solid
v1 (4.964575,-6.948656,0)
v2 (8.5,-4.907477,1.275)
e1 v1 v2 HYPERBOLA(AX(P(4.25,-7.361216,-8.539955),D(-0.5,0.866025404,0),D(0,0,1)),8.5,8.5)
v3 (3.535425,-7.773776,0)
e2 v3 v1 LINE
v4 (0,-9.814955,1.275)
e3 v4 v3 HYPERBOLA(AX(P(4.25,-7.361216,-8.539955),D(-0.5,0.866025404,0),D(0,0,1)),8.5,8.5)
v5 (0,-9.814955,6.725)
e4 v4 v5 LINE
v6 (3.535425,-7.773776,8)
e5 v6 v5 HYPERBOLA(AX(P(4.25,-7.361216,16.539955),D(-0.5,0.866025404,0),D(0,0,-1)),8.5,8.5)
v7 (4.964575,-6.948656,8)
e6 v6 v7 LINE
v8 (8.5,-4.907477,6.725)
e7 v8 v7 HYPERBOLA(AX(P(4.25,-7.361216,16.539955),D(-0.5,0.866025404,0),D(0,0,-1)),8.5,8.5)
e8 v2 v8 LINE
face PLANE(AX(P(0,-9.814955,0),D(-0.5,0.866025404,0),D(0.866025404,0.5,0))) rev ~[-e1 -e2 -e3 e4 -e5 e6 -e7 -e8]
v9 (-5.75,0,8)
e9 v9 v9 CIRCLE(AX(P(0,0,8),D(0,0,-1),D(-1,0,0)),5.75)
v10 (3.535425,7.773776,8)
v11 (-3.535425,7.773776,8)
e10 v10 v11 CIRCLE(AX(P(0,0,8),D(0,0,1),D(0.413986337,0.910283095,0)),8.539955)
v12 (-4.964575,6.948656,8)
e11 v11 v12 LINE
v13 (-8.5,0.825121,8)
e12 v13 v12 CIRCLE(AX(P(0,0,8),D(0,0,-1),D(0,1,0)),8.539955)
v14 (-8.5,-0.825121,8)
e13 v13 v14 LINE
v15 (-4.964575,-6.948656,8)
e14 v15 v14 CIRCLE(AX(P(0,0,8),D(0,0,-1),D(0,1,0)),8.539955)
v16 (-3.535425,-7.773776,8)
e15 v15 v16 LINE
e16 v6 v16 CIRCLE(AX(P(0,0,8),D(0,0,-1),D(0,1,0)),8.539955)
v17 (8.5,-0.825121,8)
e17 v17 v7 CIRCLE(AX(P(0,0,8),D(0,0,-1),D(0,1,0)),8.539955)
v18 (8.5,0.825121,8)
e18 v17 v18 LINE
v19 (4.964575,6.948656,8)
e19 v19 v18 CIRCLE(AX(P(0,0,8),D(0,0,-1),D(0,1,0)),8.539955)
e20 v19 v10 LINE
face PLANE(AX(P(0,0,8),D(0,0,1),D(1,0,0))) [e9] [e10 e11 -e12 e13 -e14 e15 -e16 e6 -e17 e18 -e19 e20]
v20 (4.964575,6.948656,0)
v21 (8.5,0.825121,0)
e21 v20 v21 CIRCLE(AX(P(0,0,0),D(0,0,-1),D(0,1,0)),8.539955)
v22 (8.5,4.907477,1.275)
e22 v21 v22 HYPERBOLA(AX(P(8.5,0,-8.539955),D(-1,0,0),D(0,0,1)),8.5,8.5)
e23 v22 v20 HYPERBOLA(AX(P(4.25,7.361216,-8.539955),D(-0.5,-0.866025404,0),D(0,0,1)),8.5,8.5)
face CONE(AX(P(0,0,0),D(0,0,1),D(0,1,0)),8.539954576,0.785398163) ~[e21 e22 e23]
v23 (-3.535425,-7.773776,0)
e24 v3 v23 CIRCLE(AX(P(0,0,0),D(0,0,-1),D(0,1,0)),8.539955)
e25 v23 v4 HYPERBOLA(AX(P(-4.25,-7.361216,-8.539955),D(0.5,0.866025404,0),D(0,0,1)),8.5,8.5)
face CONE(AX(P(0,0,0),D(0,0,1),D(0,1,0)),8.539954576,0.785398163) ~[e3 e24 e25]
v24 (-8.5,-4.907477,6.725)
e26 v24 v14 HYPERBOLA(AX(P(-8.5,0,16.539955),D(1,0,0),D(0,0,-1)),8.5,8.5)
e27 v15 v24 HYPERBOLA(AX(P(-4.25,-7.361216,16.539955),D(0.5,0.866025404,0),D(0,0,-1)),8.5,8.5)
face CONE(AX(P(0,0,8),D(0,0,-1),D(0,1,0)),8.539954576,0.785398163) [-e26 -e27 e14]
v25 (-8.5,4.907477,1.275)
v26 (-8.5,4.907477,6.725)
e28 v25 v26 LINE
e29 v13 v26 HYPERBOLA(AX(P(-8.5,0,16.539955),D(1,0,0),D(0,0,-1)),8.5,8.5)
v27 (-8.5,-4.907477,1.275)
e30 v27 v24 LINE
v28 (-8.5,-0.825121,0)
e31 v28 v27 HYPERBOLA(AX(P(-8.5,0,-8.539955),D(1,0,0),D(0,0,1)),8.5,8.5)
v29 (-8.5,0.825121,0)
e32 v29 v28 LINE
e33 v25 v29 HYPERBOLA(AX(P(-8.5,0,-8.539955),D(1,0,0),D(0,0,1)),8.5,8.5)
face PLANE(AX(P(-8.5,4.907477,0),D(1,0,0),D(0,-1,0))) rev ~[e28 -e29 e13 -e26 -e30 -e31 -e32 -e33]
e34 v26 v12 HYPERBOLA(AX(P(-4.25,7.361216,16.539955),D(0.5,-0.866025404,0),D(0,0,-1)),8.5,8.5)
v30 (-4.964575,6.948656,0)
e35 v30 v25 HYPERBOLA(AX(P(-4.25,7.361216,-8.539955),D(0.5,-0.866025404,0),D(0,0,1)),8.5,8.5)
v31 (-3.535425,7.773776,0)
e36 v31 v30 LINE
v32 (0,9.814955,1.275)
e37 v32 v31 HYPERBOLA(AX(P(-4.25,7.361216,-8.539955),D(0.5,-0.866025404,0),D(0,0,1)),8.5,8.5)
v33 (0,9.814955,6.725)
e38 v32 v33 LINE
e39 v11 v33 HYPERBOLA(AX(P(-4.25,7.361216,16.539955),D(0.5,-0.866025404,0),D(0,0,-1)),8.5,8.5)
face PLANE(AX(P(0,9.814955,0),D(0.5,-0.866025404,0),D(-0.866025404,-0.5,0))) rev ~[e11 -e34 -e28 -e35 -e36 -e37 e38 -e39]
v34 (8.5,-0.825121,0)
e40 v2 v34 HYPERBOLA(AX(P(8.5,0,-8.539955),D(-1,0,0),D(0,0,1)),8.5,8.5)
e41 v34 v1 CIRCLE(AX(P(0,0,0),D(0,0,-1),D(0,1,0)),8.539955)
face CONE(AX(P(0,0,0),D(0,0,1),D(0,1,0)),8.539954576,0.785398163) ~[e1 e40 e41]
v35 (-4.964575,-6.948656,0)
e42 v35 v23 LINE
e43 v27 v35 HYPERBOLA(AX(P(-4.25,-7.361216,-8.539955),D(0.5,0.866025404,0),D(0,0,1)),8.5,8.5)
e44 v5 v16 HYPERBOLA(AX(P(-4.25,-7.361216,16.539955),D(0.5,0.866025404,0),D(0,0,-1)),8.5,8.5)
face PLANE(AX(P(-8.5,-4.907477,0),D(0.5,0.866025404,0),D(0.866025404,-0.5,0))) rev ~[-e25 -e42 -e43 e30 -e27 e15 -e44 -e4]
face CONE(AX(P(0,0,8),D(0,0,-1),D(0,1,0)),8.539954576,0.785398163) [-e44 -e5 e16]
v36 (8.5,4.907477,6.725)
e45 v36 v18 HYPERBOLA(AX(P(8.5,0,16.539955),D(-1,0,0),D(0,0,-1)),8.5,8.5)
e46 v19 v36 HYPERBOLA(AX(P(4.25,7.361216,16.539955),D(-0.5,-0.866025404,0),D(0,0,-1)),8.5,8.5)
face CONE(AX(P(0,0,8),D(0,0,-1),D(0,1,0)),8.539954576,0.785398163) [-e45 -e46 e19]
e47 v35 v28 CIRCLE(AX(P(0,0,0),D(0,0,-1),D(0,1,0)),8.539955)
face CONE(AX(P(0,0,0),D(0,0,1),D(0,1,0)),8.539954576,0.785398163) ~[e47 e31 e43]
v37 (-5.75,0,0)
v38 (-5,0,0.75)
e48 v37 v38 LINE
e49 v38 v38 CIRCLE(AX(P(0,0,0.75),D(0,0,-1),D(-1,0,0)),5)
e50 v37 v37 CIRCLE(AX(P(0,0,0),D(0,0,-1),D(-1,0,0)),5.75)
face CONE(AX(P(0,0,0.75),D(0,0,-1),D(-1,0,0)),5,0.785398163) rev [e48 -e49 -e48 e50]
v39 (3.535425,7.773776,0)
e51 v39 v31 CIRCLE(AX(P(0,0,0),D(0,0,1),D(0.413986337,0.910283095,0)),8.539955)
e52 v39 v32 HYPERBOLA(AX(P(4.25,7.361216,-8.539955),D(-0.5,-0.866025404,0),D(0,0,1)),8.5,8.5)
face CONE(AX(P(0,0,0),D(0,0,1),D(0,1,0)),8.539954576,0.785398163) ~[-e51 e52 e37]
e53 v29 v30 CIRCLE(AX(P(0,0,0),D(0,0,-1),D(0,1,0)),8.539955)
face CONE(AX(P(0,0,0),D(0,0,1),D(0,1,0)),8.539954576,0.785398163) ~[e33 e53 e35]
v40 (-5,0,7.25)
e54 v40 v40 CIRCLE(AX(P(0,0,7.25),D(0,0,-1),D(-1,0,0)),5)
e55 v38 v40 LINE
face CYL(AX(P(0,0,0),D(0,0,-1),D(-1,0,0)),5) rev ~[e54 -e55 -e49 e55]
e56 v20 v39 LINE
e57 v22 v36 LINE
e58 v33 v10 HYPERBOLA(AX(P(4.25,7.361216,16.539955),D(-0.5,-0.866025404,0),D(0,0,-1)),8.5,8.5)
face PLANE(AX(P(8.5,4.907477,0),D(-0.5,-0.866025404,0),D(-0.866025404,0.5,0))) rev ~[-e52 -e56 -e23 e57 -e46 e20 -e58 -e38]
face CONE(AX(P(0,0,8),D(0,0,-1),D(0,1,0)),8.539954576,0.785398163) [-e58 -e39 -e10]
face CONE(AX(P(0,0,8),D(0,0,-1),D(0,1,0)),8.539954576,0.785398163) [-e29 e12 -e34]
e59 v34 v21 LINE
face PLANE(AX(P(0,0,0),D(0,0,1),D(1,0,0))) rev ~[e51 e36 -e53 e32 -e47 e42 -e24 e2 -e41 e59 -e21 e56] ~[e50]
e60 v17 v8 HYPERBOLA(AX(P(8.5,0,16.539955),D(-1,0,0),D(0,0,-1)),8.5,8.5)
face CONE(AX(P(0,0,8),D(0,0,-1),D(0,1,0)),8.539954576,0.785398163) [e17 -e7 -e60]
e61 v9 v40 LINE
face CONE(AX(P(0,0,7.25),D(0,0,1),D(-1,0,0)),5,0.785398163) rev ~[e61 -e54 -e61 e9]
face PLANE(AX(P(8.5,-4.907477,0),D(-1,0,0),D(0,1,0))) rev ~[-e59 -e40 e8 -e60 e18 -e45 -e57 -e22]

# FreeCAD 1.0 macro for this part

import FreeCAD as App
import Part
import Sketcher
from FreeCAD import Vector
Q = App.Units.Quantity


def edges_at(feature, points):
    """Names of the edges that pass closest to the given points."""
    edges = feature.Shape.Edges
    near = lambda p: min(range(len(edges)), key=lambda i: edges[i].distToShape(Part.Vertex(*p))[0])
    return sorted({f"Edge{near(p) + 1}" for p in points})


def add_polygon(sketch, points):
    """Adds a closed chain of lines whose ends are joined by coincident constraints."""
    first, n = sketch.GeometryCount, len(points)
    for a, b in zip(points, points[1:] + points[:1]):
        sketch.addGeometry(Part.LineSegment(App.Vector(*a, 0), App.Vector(*b, 0)), False)
    for i in range(n):
        sketch.addConstraint(Sketcher.Constraint("Coincident", first + i, 2, first + (i + 1) % n, 1))

doc = App.newDocument("Part")
body = doc.addObject("PartDesign::Body", "Body")

sketch1 = doc.addObject("Sketcher::SketchObject", "Sketch")
body.addObject(sketch1)
sketch1.AttachmentSupport = (doc.XY_Plane, [""])
sketch1.MapMode = "FlatFace"
add_polygon(sketch1, [(0, 10), (-8, 5), (-8, -5), (0, -10), (8, -5), (8, 5)])
sketch1.addConstraint([
    Sketcher.Constraint("Vertical", 1),
    Sketcher.Constraint("Vertical", 4),
    Sketcher.Constraint("Symmetric", 0, 2, 3, 2, -1, 1),
    Sketcher.Constraint("Symmetric", 2, 2, 5, 2, -1, 1),
    Sketcher.Constraint("PointOnObject", 2, 2, -2),
    Sketcher.Constraint("Parallel", 2, 5),
    Sketcher.Constraint("Horizontal", 1, 2, 3, 2),
    Sketcher.Constraint("Angle", 0, Q("-150 deg")),
    Sketcher.Constraint("DistanceX", 1, 2, 3, 2, 17.0),
    Sketcher.Constraint("DistanceY", 1, 2, 1, 1, 9.814955),
])
pad1 = doc.addObject("PartDesign::Pad", "Pad")
body.addObject(pad1)
pad1.Profile = sketch1
pad1.Length = 8

sketch2 = doc.addObject("Sketcher::SketchObject", "Sketch001")
body.addObject(sketch2)
sketch2.AttachmentSupport = (doc.YZ_Plane, [""])
sketch2.MapMode = "FlatFace"
add_polygon(sketch2, [(9.8, 8), (8.5, 8), (9.8, 6.7)])
add_polygon(sketch2, [(9.8, 0), (9.8, 1.3), (8.5, 0)])
sketch2.addConstraint([
    Sketcher.Constraint("Horizontal", 0),
    Sketcher.Constraint("Vertical", 2),
    Sketcher.Constraint("Vertical", 3),
    Sketcher.Constraint("Horizontal", 5),
    Sketcher.Constraint("PointOnObject", 4, 2, -1),
    Sketcher.Constraint("Perpendicular", 1, 4),
    Sketcher.Constraint("Vertical", 2, 2, 3, 2),
    Sketcher.Constraint("Vertical", 0, 2, 4, 2),
    Sketcher.Constraint("Equal", 5, 2),
    Sketcher.Constraint("DistanceY", -1, 1, 0, 2, 8.0),
    Sketcher.Constraint("DistanceX", 0, 2, 0, 1, 1.275),
    Sketcher.Constraint("DistanceX", -1, 1, 0, 2, 8.539955),
])
groove = doc.addObject("PartDesign::Groove", "Groove")
body.addObject(groove)
groove.Profile = sketch2
groove.ReferenceAxis = (sketch2, ["V_Axis"])
groove.Angle = 360

sketch3 = doc.addObject("Sketcher::SketchObject", "Sketch002")
body.addObject(sketch3)
sketch3.AttachmentSupport = (doc.XY_Plane, [""])
sketch3.MapMode = "FlatFace"
sketch3.addGeometry(Part.Circle(Vector(0, 0, 0), Vector(0, 0, 1), 5), False)
sketch3.addConstraint([
    Sketcher.Constraint("Coincident", 0, 3, -1, 1),
    Sketcher.Constraint("Diameter", 0, 10.0),
])
pocket1 = doc.addObject("PartDesign::Pocket", "Pocket")
body.addObject(pocket1)
pocket1.Profile = sketch3
pocket1.Type = "ThroughAll"
pocket1.Reversed = True
doc.recompute()

chamfer = doc.addObject("PartDesign::Chamfer", "Chamfer")
body.addObject(chamfer)
chamfer.Base = (pocket1, edges_at(pocket1, [(5, 0, 8), (5, 0, 0)]))
chamfer.Size = 0.75

doc.recompute()
